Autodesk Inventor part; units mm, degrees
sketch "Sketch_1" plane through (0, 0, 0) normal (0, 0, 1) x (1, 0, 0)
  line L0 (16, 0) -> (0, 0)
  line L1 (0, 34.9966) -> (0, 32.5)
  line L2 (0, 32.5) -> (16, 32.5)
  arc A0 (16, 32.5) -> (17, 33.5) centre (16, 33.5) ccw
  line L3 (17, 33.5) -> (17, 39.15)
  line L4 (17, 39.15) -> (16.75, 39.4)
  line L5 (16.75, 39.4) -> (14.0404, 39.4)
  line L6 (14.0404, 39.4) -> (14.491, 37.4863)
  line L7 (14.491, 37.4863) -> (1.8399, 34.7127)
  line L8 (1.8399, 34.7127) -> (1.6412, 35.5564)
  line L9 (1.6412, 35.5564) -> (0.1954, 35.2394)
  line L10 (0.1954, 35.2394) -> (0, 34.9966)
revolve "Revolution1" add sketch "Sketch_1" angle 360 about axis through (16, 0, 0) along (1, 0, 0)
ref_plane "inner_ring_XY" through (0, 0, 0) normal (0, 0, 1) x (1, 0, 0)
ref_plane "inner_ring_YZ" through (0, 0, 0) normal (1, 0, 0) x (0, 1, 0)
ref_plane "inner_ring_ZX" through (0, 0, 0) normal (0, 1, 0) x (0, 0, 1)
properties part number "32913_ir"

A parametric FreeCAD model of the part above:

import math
import FreeCAD as App
import Part
import Sketcher
from FreeCAD import Vector
Q = App.Units.Quantity

doc = App.newDocument("Part")
body = doc.addObject("PartDesign::Body", "Body")

# Sketch on XY plane
sketch1 = body.newObject("Sketcher::SketchObject", "Sketch")
sketch1.AttachmentSupport = (doc.getObject("XY_Plane"), [""])
sketch1.MapMode = "FlatFace"
sketch1.addGeometry(Part.LineSegment(Vector(0.2, 35.24, 0), Vector(0, 35, 0)), False)
sketch1.addGeometry(Part.LineSegment(Vector(0, 35, 0), Vector(0, 32.5, 0)), False)
sketch1.addGeometry(Part.LineSegment(Vector(0, 32.5, 0), Vector(16, 32.5, 0)), False)
sketch1.addGeometry(Part.ArcOfCircle(Part.Circle(Vector(16, 33.5, 0), Vector(0, 0, 1), 1), math.radians(-90), math.radians(0)), False)
sketch1.addGeometry(Part.LineSegment(Vector(17, 33.5, 0), Vector(17, 39.15, 0)), False)
sketch1.addGeometry(Part.LineSegment(Vector(17, 39.15, 0), Vector(16.75, 39.4, 0)), False)
sketch1.addGeometry(Part.LineSegment(Vector(16.75, 39.4, 0), Vector(14.04, 39.4, 0)), False)
sketch1.addGeometry(Part.LineSegment(Vector(14.04, 39.4, 0), Vector(14.49, 37.49, 0)), False)
sketch1.addGeometry(Part.LineSegment(Vector(14.49, 37.49, 0), Vector(1.84, 34.71, 0)), False)
sketch1.addGeometry(Part.LineSegment(Vector(1.84, 34.71, 0), Vector(1.64, 35.56, 0)), False)
sketch1.addGeometry(Part.LineSegment(Vector(1.64, 35.56, 0), Vector(0.2, 35.24, 0)), False)
sketch1.addConstraint(Sketcher.Constraint("Coincident", 0, 2, 1, 1))
sketch1.addConstraint(Sketcher.Constraint("Coincident", 1, 2, 2, 1))
sketch1.addConstraint(Sketcher.Constraint("Tangent", 2, 2, 3, 1))
sketch1.addConstraint(Sketcher.Constraint("Tangent", 3, 2, 4, 1))
sketch1.addConstraint(Sketcher.Constraint("Coincident", 4, 2, 5, 1))
sketch1.addConstraint(Sketcher.Constraint("Coincident", 5, 2, 6, 1))
sketch1.addConstraint(Sketcher.Constraint("Coincident", 6, 2, 7, 1))
sketch1.addConstraint(Sketcher.Constraint("Coincident", 7, 2, 8, 1))
sketch1.addConstraint(Sketcher.Constraint("Coincident", 8, 2, 9, 1))
sketch1.addConstraint(Sketcher.Constraint("Coincident", 9, 2, 10, 1))
sketch1.addConstraint(Sketcher.Constraint("Coincident", 10, 2, 0, 1))
sketch1.addConstraint(Sketcher.Constraint("Vertical", 1))
sketch1.addConstraint(Sketcher.Constraint("Horizontal", 2))
sketch1.addConstraint(Sketcher.Constraint("Vertical", 4))
sketch1.addConstraint(Sketcher.Constraint("Horizontal", 6))
sketch1.addConstraint(Sketcher.Constraint("PointOnObject", 0, 2, -2))
sketch1.addConstraint(Sketcher.Constraint("Parallel", 7, 9))
sketch1.addConstraint(Sketcher.Constraint("Parallel", 8, 10))
sketch1.addConstraint(Sketcher.Constraint("Radius", 3, 1.0))
sketch1.addConstraint(Sketcher.Constraint("DistanceX", 2, 1, 2, 2, 16.0))
sketch1.addConstraint(Sketcher.Constraint("Angle", 5, Q("135 deg")))
sketch1.addConstraint(Sketcher.Constraint("DistanceY", 4, 1, 4, 2, 5.65))
sketch1.addConstraint(Sketcher.Constraint("DistanceY", -1, 1, 3, 3, 33.5))
sketch1.addConstraint(Sketcher.Constraint("DistanceY", -1, 1, 5, 2, 39.4))
sketch1.addConstraint(Sketcher.Constraint("Angle", 7, Q("-76.7505 deg")))
sketch1.addConstraint(Sketcher.Constraint("DistanceX", -1, 1, 8, 2, 1.84))
sketch1.addConstraint(Sketcher.Constraint("DistanceY", 9, 2, 7, 2, 1.93))
sketch1.addConstraint(Sketcher.Constraint("Distance", 7, 1.966))
sketch1.addConstraint(Sketcher.Constraint("DistanceX", 6, 2, 6, 1, 2.7096))
sketch1.addConstraint(Sketcher.Constraint("DistanceY", 1, 2, 1, 1, 2.4966))
sketch1.addConstraint(Sketcher.Constraint("DistanceY", 8, 2, 0, 2, 0.284))
sketch1.addConstraint(Sketcher.Constraint("DistanceY", 10, 2, 9, 2, 0.317))
revolution = body.newObject("PartDesign::Revolution", "Revolution")
revolution.Profile = sketch1
revolution.ReferenceAxis = (sketch1, ["H_Axis"])
revolution.Angle = 360

doc.recompute()
